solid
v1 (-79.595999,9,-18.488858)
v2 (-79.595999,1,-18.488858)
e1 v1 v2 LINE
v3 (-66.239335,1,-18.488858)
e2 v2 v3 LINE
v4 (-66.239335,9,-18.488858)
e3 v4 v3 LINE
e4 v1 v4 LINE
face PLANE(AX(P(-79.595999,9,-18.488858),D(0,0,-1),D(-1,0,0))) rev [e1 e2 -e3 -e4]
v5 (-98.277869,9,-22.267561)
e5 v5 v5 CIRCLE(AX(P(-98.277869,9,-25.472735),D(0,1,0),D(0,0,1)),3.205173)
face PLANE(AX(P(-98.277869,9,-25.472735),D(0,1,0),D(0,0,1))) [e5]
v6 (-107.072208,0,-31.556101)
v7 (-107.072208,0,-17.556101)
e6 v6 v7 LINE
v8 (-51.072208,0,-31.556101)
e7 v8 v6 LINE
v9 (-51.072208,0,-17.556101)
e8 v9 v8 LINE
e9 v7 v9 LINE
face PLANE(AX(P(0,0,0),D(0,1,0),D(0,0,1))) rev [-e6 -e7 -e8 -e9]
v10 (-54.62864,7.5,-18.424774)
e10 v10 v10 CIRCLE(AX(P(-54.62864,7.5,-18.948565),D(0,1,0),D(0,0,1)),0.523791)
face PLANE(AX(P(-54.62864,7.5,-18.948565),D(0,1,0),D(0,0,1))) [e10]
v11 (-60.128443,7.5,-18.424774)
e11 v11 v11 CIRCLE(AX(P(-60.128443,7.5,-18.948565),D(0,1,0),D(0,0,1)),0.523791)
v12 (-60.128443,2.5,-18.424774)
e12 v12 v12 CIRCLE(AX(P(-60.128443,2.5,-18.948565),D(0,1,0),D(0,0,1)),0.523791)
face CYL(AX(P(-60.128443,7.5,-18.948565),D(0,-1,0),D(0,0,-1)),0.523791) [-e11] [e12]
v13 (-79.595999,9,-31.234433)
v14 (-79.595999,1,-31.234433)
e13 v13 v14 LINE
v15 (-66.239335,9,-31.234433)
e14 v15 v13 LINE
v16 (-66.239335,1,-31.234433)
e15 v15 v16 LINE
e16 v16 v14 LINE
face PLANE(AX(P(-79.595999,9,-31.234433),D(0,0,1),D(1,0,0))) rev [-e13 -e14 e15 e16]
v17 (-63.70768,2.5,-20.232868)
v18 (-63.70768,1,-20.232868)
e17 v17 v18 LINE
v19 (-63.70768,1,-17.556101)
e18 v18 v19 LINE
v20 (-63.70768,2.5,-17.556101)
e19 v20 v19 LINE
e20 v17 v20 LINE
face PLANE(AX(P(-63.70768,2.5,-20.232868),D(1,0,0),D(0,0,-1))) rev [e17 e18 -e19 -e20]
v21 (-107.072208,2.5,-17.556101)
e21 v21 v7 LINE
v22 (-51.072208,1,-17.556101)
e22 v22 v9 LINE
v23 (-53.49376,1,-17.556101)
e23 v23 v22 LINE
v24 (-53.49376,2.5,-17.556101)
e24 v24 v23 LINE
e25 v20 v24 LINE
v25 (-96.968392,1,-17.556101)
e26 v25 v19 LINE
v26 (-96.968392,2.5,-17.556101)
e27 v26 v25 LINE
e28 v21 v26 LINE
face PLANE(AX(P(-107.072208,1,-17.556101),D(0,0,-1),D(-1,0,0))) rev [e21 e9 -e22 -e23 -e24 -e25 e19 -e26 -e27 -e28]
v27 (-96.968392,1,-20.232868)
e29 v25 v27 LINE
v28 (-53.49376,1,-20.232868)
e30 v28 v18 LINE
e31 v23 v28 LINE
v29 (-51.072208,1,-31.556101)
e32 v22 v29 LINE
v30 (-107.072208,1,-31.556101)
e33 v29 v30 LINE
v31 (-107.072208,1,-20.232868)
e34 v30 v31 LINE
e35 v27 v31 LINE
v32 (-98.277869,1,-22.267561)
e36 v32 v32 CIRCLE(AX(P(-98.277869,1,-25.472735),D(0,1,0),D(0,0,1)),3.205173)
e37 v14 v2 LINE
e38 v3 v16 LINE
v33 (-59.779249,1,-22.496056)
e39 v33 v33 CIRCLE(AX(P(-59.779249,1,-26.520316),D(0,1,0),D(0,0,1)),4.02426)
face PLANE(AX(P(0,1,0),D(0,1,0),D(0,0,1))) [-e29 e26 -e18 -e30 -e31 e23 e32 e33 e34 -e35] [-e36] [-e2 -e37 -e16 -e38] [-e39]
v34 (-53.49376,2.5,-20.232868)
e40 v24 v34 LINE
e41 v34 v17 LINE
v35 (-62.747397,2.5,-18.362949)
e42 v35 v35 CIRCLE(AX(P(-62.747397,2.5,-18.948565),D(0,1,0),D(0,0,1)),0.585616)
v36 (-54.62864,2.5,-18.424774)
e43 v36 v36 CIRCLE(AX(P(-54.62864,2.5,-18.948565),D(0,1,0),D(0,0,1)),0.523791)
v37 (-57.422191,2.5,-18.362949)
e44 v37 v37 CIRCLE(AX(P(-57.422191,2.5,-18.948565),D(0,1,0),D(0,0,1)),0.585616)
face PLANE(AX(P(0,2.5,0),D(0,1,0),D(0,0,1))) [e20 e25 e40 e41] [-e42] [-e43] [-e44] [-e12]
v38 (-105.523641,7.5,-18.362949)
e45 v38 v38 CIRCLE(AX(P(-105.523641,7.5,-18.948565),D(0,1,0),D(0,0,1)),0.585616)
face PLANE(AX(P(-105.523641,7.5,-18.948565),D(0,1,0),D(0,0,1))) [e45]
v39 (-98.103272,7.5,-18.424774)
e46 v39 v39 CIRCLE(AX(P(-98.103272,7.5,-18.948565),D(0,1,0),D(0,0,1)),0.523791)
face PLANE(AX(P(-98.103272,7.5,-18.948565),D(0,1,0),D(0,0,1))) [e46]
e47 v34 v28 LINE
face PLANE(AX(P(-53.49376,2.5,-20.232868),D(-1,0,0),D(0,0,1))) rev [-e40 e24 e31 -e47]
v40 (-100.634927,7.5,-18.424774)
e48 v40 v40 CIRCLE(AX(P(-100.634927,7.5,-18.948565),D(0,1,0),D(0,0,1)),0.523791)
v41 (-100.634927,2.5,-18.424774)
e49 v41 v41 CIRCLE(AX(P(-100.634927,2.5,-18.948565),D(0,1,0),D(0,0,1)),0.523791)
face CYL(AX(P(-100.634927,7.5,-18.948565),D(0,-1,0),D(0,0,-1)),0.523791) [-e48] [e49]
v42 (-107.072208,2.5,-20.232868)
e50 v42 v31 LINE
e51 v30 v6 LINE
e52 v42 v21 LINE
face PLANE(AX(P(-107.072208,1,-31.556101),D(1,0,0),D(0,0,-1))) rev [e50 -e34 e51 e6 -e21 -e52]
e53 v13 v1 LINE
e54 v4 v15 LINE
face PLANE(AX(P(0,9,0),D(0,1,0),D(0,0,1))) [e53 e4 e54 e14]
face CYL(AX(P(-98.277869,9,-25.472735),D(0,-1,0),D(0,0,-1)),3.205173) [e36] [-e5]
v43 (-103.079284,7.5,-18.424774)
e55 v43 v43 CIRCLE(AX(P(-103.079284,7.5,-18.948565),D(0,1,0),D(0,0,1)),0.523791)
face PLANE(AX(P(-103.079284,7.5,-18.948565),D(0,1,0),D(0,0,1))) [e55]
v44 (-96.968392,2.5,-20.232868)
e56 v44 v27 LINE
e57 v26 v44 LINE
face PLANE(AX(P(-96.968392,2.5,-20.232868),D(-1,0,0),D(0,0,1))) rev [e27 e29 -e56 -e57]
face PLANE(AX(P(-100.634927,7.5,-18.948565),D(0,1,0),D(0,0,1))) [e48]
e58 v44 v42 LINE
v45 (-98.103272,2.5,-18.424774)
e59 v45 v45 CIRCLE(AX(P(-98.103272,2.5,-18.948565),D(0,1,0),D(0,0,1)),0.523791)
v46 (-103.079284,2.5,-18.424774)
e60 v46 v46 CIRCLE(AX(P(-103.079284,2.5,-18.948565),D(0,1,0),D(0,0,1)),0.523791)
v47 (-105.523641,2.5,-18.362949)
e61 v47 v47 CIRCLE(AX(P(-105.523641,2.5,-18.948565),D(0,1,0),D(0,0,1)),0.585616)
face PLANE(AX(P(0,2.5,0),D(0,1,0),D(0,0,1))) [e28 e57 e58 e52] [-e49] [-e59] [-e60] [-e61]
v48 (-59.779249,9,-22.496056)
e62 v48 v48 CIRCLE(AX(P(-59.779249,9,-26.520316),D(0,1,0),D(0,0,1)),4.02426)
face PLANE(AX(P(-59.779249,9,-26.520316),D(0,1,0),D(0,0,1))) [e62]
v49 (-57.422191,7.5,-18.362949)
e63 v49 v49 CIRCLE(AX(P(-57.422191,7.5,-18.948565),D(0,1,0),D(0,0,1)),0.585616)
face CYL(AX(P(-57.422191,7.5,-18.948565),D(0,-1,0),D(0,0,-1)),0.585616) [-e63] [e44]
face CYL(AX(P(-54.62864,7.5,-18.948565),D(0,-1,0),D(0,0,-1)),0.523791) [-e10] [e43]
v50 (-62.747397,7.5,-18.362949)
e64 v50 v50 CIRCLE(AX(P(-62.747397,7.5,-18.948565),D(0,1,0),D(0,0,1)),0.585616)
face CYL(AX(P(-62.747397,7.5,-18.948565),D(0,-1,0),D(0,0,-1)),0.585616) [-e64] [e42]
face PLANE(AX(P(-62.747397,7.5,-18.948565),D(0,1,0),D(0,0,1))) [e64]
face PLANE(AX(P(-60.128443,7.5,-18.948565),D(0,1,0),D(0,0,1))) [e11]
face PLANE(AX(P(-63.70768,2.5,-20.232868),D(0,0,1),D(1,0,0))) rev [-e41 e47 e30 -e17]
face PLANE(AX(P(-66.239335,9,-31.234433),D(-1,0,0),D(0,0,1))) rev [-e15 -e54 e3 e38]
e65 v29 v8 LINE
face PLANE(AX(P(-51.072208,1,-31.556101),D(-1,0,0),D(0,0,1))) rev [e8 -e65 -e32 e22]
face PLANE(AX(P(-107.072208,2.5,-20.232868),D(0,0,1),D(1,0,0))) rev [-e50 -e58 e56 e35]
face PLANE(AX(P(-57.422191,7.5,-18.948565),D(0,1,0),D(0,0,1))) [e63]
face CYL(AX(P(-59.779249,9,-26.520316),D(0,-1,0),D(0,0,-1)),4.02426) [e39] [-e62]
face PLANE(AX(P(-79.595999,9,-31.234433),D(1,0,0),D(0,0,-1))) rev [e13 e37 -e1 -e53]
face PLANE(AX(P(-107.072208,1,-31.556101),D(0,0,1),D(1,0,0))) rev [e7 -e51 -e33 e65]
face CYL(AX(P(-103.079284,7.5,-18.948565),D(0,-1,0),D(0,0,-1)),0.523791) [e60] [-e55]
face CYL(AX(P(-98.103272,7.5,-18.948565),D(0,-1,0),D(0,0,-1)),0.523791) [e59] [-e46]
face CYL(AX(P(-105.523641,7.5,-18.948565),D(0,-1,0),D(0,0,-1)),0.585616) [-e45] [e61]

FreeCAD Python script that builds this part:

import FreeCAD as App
import Part
import Sketcher

V = App.Vector

doc = App.newDocument("Part")
params = doc.addObject("Spreadsheet::Sheet", "Params")
for row, (alias, value) in enumerate([
    ("sketch1_width", "56 mm"),
    ("sketch1_height", "14 mm"),
    ("pad1_length", "1 mm"),
    ("pad2_length", "8 mm"),
    ("pad3_length", "1.5 mm"),
    ("pad4_length", "5 mm"),
], start=1):
    params.set(f"A{row}", alias)
    params.set(f"B{row}", "=" + value)
    params.setAlias(f"B{row}", alias)

body = doc.addObject("PartDesign::Body", "Body")

sketch1 = body.newObject("Sketcher::SketchObject", "Sketch")
sketch1.AttachmentSupport = (doc.getObject("XZ_Plane"), [""])
sketch1.MapMode = "FlatFace"
sketch1.addGeometry(Part.LineSegment(V(-107, -32, 0), V(-107, -18, 0)), False)
sketch1.addGeometry(Part.LineSegment(V(-107, -18, 0), V(-51, -18, 0)), False)
sketch1.addGeometry(Part.LineSegment(V(-51, -18, 0), V(-51, -32, 0)), False)
sketch1.addGeometry(Part.LineSegment(V(-51, -32, 0), V(-107, -32, 0)), False)
sketch1.addConstraint(Sketcher.Constraint("Coincident", 0, 2, 1, 1))
sketch1.addConstraint(Sketcher.Constraint("Coincident", 1, 2, 2, 1))
sketch1.addConstraint(Sketcher.Constraint("Coincident", 2, 2, 3, 1))
sketch1.addConstraint(Sketcher.Constraint("Coincident", 3, 2, 0, 1))
sketch1.addConstraint(Sketcher.Constraint("Vertical", 0))
sketch1.addConstraint(Sketcher.Constraint("Horizontal", 1))
sketch1.addConstraint(Sketcher.Constraint("Vertical", 2))
sketch1.addConstraint(Sketcher.Constraint("Horizontal", 3))
sketch1.addConstraint(Sketcher.Constraint("DistanceX", 1, 1, 1, 2, 56.0))
sketch1.addConstraint(Sketcher.Constraint("DistanceY", 0, 1, 0, 2, 14.0))
sketch1.addConstraint(Sketcher.Constraint("DistanceY", 0, 2, -1, 1, 17.556101))
sketch1.addConstraint(Sketcher.Constraint("DistanceX", 0, 2, -1, 1, 107.072208))
sketch1.setExpression("Constraints[8]", "Params.sketch1_width")
sketch1.setExpression("Constraints[9]", "Params.sketch1_height")
pad1 = body.newObject("PartDesign::Pad", "Pad")
pad1.Profile = sketch1
pad1.setExpression("Length", "Params.pad1_length")
pad1.Reversed = True

sketch2 = body.newObject("Sketcher::SketchObject", "Sketch001")
sketch2.AttachmentSupport = (doc.getObject("XZ_Plane"), [""])
sketch2.MapMode = "FlatFace"
sketch2.AttachmentOffset = App.Placement(V(0, 0, -1), App.Rotation())
sketch2.addGeometry(Part.Circle(V(-98.3, -25.5, 0), V(0, 0, 1), 3.2), False)
sketch2.addGeometry(Part.Circle(V(-59.8, -26.5, 0), V(0, 0, 1), 4), False)
sketch2.addGeometry(Part.LineSegment(V(-79.6, -31.2, 0), V(-79.6, -18.5, 0)), False)
sketch2.addGeometry(Part.LineSegment(V(-79.6, -18.5, 0), V(-66.2, -18.5, 0)), False)
sketch2.addGeometry(Part.LineSegment(V(-66.2, -18.5, 0), V(-66.2, -31.2, 0)), False)
sketch2.addGeometry(Part.LineSegment(V(-66.2, -31.2, 0), V(-79.6, -31.2, 0)), False)
sketch2.addConstraint(Sketcher.Constraint("Coincident", 2, 2, 3, 1))
sketch2.addConstraint(Sketcher.Constraint("Coincident", 3, 2, 4, 1))
sketch2.addConstraint(Sketcher.Constraint("Coincident", 4, 2, 5, 1))
sketch2.addConstraint(Sketcher.Constraint("Coincident", 5, 2, 2, 1))
sketch2.addConstraint(Sketcher.Constraint("Vertical", 2))
sketch2.addConstraint(Sketcher.Constraint("Horizontal", 3))
sketch2.addConstraint(Sketcher.Constraint("Vertical", 4))
sketch2.addConstraint(Sketcher.Constraint("Horizontal", 5))
sketch2.addConstraint(Sketcher.Constraint("Diameter", 1, 8.04852))
sketch2.addConstraint(Sketcher.Constraint("Diameter", 0, 6.410347))
sketch2.addConstraint(Sketcher.Constraint("DistanceX", 2, 2, -1, 1, 79.595999))
sketch2.addConstraint(Sketcher.Constraint("DistanceY", 4, 2, 0, 3, 5.761698))
sketch2.addConstraint(Sketcher.Constraint("DistanceX", 3, 1, 3, 2, 13.356664))
sketch2.addConstraint(Sketcher.Constraint("DistanceY", 2, 1, 2, 2, 12.745575))
sketch2.addConstraint(Sketcher.Constraint("DistanceX", 0, 3, -1, 1, 98.277869))
sketch2.addConstraint(Sketcher.Constraint("DistanceX", 1, 3, -1, 1, 59.779249))
sketch2.addConstraint(Sketcher.Constraint("DistanceY", 2, 2, -1, 1, 18.488858))
sketch2.addConstraint(Sketcher.Constraint("DistanceY", 1, 3, 0, 3, 1.047581))
pad2 = body.newObject("PartDesign::Pad", "Pad001")
pad2.Profile = sketch2
pad2.setExpression("Length", "Params.pad2_length")
pad2.Reversed = True

sketch3 = body.newObject("Sketcher::SketchObject", "Sketch002")
sketch3.AttachmentSupport = (doc.getObject("XZ_Plane"), [""])
sketch3.MapMode = "FlatFace"
sketch3.AttachmentOffset = App.Placement(V(0, 0, -1), App.Rotation())
sketch3.addGeometry(Part.LineSegment(V(-107.1, -20.2, 0), V(-107.1, -17.6, 0)), False)
sketch3.addGeometry(Part.LineSegment(V(-107.1, -17.6, 0), V(-97, -17.6, 0)), False)
sketch3.addGeometry(Part.LineSegment(V(-97, -17.6, 0), V(-97, -20.2, 0)), False)
sketch3.addGeometry(Part.LineSegment(V(-97, -20.2, 0), V(-107.1, -20.2, 0)), False)
sketch3.addGeometry(Part.LineSegment(V(-63.7, -20.2, 0), V(-63.7, -17.6, 0)), False)
sketch3.addGeometry(Part.LineSegment(V(-63.7, -17.6, 0), V(-53.5, -17.6, 0)), False)
sketch3.addGeometry(Part.LineSegment(V(-53.5, -17.6, 0), V(-53.5, -20.2, 0)), False)
sketch3.addGeometry(Part.LineSegment(V(-53.5, -20.2, 0), V(-63.7, -20.2, 0)), False)
sketch3.addConstraint(Sketcher.Constraint("Coincident", 0, 2, 1, 1))
sketch3.addConstraint(Sketcher.Constraint("Coincident", 1, 2, 2, 1))
sketch3.addConstraint(Sketcher.Constraint("Coincident", 2, 2, 3, 1))
sketch3.addConstraint(Sketcher.Constraint("Coincident", 3, 2, 0, 1))
sketch3.addConstraint(Sketcher.Constraint("Coincident", 4, 2, 5, 1))
sketch3.addConstraint(Sketcher.Constraint("Coincident", 5, 2, 6, 1))
sketch3.addConstraint(Sketcher.Constraint("Coincident", 6, 2, 7, 1))
sketch3.addConstraint(Sketcher.Constraint("Coincident", 7, 2, 4, 1))
sketch3.addConstraint(Sketcher.Constraint("Vertical", 0))
sketch3.addConstraint(Sketcher.Constraint("Horizontal", 1))
sketch3.addConstraint(Sketcher.Constraint("Vertical", 2))
sketch3.addConstraint(Sketcher.Constraint("Horizontal", 3))
sketch3.addConstraint(Sketcher.Constraint("Vertical", 4))
sketch3.addConstraint(Sketcher.Constraint("Horizontal", 5))
sketch3.addConstraint(Sketcher.Constraint("Vertical", 6))
sketch3.addConstraint(Sketcher.Constraint("Horizontal", 7))
sketch3.addConstraint(Sketcher.Constraint("Horizontal", 1, 2, 4, 2))
sketch3.addConstraint(Sketcher.Constraint("Horizontal", 3, 2, 6, 2))
sketch3.addConstraint(Sketcher.Constraint("DistanceX", 5, 1, 5, 2, 10.21392))
sketch3.addConstraint(Sketcher.Constraint("DistanceY", 0, 2, -1, 1, 17.556101))
sketch3.addConstraint(Sketcher.Constraint("DistanceX", 1, 1, 1, 2, 10.103816))
sketch3.addConstraint(Sketcher.Constraint("DistanceY", 0, 1, 0, 2, 2.676767))
sketch3.addConstraint(Sketcher.Constraint("DistanceX", 0, 2, -1, 1, 107.072208))
sketch3.addConstraint(Sketcher.Constraint("DistanceX", 4, 2, -1, 1, 63.70768))
pad3 = body.newObject("PartDesign::Pad", "Pad002")
pad3.Profile = sketch3
pad3.setExpression("Length", "Params.pad3_length")
pad3.Reversed = True

sketch4 = body.newObject("Sketcher::SketchObject", "Sketch003")
sketch4.AttachmentSupport = (doc.getObject("XZ_Plane"), [""])
sketch4.MapMode = "FlatFace"
sketch4.AttachmentOffset = App.Placement(V(0, 0, -2.5), App.Rotation())
sketch4.addGeometry(Part.Circle(V(-105.5, -18.9, 0), V(0, 0, 1), 0.6), False)
sketch4.addGeometry(Part.Circle(V(-103.1, -18.9, 0), V(0, 0, 1), 0.5), False)
sketch4.addGeometry(Part.Circle(V(-100.6, -18.9, 0), V(0, 0, 1), 0.5), False)
sketch4.addGeometry(Part.Circle(V(-98.1, -18.9, 0), V(0, 0, 1), 0.5), False)
sketch4.addGeometry(Part.Circle(V(-62.7, -18.9, 0), V(0, 0, 1), 0.6), False)
sketch4.addGeometry(Part.Circle(V(-60.1, -18.9, 0), V(0, 0, 1), 0.5), False)
sketch4.addGeometry(Part.Circle(V(-57.4, -18.9, 0), V(0, 0, 1), 0.6), False)
sketch4.addGeometry(Part.Circle(V(-54.6, -18.9, 0), V(0, 0, 1), 0.5), False)
sketch4.addConstraint(Sketcher.Constraint("Equal", 1, 2))
sketch4.addConstraint(Sketcher.Constraint("Equal", 2, 3))
sketch4.addConstraint(Sketcher.Constraint("Equal", 0, 4))
sketch4.addConstraint(Sketcher.Constraint("Equal", 3, 5))
sketch4.addConstraint(Sketcher.Constraint("Equal", 4, 6))
sketch4.addConstraint(Sketcher.Constraint("Equal", 5, 7))
sketch4.addConstraint(Sketcher.Constraint("Horizontal", 0, 3, 1, 3))
sketch4.addConstraint(Sketcher.Constraint("Horizontal", 1, 3, 2, 3))
sketch4.addConstraint(Sketcher.Constraint("Horizontal", 2, 3, 3, 3))
sketch4.addConstraint(Sketcher.Constraint("Horizontal", 3, 3, 4, 3))
sketch4.addConstraint(Sketcher.Constraint("Horizontal", 4, 3, 5, 3))
sketch4.addConstraint(Sketcher.Constraint("Horizontal", 5, 3, 6, 3))
sketch4.addConstraint(Sketcher.Constraint("Horizontal", 6, 3, 7, 3))
sketch4.addConstraint(Sketcher.Constraint("Diameter", 0, 1.171232))
sketch4.addConstraint(Sketcher.Constraint("Diameter", 1, 1.047581))
sketch4.addConstraint(Sketcher.Constraint("DistanceX", 0, 3, 5, 3, 45.395198))
sketch4.addConstraint(Sketcher.Constraint("DistanceX", 0, 3, -1, 1, 105.523641))
sketch4.addConstraint(Sketcher.Constraint("DistanceX", 6, 3, -1, 1, 57.422191))
sketch4.addConstraint(Sketcher.Constraint("DistanceX", 7, 3, -1, 1, 54.62864))
sketch4.addConstraint(Sketcher.Constraint("DistanceX", 0, 3, 3, 3, 7.420369))
sketch4.addConstraint(Sketcher.Constraint("DistanceX", 2, 3, 4, 3, 37.887531))
sketch4.addConstraint(Sketcher.Constraint("DistanceX", 1, 3, 5, 3, 42.950841))
sketch4.addConstraint(Sketcher.Constraint("DistanceY", 0, 3, -1, 1, 18.948565))
sketch4.addConstraint(Sketcher.Constraint("DistanceX", 2, 3, -1, 1, 100.634927))
pad4 = body.newObject("PartDesign::Pad", "Pad003")
pad4.Profile = sketch4
pad4.setExpression("Length", "Params.pad4_length")
pad4.Reversed = True

doc.recompute()
